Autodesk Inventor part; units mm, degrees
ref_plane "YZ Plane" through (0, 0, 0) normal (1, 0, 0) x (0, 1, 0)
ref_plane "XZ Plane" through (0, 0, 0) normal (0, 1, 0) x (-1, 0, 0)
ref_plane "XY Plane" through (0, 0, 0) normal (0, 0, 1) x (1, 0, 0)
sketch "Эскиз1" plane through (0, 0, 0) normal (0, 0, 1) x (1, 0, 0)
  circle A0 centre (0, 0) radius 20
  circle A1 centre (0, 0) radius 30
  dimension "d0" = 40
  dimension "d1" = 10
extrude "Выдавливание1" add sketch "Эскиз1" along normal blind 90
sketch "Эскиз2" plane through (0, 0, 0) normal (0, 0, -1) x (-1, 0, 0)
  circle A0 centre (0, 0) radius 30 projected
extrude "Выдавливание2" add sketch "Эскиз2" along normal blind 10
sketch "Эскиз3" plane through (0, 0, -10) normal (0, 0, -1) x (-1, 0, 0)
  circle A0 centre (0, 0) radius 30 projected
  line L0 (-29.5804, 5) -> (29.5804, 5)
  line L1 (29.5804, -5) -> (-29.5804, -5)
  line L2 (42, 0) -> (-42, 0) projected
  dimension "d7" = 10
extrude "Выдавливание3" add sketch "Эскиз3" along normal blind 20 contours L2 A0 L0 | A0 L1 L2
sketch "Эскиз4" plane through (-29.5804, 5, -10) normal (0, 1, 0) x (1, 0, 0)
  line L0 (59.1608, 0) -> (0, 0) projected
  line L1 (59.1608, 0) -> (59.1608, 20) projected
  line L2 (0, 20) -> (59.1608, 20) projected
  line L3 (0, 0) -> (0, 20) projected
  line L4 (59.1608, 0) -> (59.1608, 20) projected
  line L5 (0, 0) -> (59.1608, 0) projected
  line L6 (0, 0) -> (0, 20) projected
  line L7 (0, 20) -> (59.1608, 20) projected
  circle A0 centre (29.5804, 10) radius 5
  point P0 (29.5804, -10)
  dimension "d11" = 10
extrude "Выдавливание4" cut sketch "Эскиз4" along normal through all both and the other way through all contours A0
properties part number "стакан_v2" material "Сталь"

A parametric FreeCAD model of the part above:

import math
import FreeCAD as App
import Part
import Sketcher
from FreeCAD import Vector

doc = App.newDocument("Part")
params = doc.addObject("Spreadsheet::Sheet", "Params")
for row, (alias, value) in enumerate([
    ("sketch1_diameter", "40 mm"),
    ("sketch1_diameter2", "60 mm"),
    ("pad1_length", "90 mm"),
    ("sketch2_diameter", "60 mm"),
    ("pad2_length", "10 mm"),
    ("sketch3_radius", "30 mm"),
    ("pad3_length", "20 mm"),
    ("sketch4_diameter", "10 mm"),
], start=1):
    params.set(f"A{row}", alias)
    params.set(f"B{row}", "=" + value)
    params.setAlias(f"B{row}", alias)

body = doc.addObject("PartDesign::Body", "Body")

# Sketch on XY plane
sketch1 = doc.addObject("Sketcher::SketchObject", "Sketch")
body.addObject(sketch1)
sketch1.AttachmentSupport = (doc.XY_Plane, [""])
sketch1.MapMode = "FlatFace"
sketch1.addGeometry(Part.Circle(Vector(0, 0, 0), Vector(0, 0, 1), 30), False)
sketch1.addGeometry(Part.Circle(Vector(0, 0, 0), Vector(0, 0, 1), 20), False)
sketch1.addConstraint(Sketcher.Constraint("Coincident", 0, 3, -1, 1))
sketch1.addConstraint(Sketcher.Constraint("Coincident", 1, 3, -1, 1))
sketch1.addConstraint(Sketcher.Constraint("Diameter", 1, 40.0))
sketch1.addConstraint(Sketcher.Constraint("Diameter", 0, 60.0))
sketch1.setExpression("Constraints[2]", "Params.sketch1_diameter")
sketch1.setExpression("Constraints[3]", "Params.sketch1_diameter2")
pad1 = doc.addObject("PartDesign::Pad", "Pad")
body.addObject(pad1)
pad1.Profile = sketch1
pad1.setExpression("Length", "Params.pad1_length")

# Sketch on XY plane
sketch2 = doc.addObject("Sketcher::SketchObject", "Sketch001")
body.addObject(sketch2)
sketch2.AttachmentSupport = (doc.XY_Plane, [""])
sketch2.MapMode = "FlatFace"
sketch2.addGeometry(Part.Circle(Vector(0, 0, 0), Vector(0, 0, 1), 30), False)
sketch2.addConstraint(Sketcher.Constraint("Coincident", 0, 3, -1, 1))
sketch2.addConstraint(Sketcher.Constraint("Diameter", 0, 60.0))
sketch2.setExpression("Constraints[1]", "Params.sketch2_diameter")
pad2 = doc.addObject("PartDesign::Pad", "Pad001")
body.addObject(pad2)
pad2.Profile = sketch2
pad2.setExpression("Length", "Params.pad2_length")
pad2.Reversed = True

# Sketch on XY plane
sketch3 = doc.addObject("Sketcher::SketchObject", "Sketch002")
body.addObject(sketch3)
sketch3.AttachmentSupport = (doc.XY_Plane, [""])
sketch3.MapMode = "FlatFace"
sketch3.AttachmentOffset = App.Placement(Vector(0, 0, -10), App.Rotation())
sketch3.addGeometry(Part.ArcOfCircle(Part.Circle(Vector(0, 0, 0), Vector(0, 0, 1), 30), math.radians(-9.594068), math.radians(9.594068)), False)
sketch3.addGeometry(Part.LineSegment(Vector(29.5804, -5, 0), Vector(-29.5804, -5, 0)), False)
sketch3.addGeometry(Part.ArcOfCircle(Part.Circle(Vector(0, 0, 0), Vector(0, 0, 1), 30), math.radians(170.405932), math.radians(189.594068)), False)
sketch3.addGeometry(Part.LineSegment(Vector(-29.5804, 5, 0), Vector(29.5804, 5, 0)), False)
sketch3.addConstraint(Sketcher.Constraint("Coincident", 0, 1, 1, 1))
sketch3.addConstraint(Sketcher.Constraint("Coincident", 1, 2, 2, 2))
sketch3.addConstraint(Sketcher.Constraint("Coincident", 2, 1, 3, 1))
sketch3.addConstraint(Sketcher.Constraint("Coincident", 3, 2, 0, 2))
sketch3.addConstraint(Sketcher.Constraint("Horizontal", 1))
sketch3.addConstraint(Sketcher.Constraint("Horizontal", 3))
sketch3.addConstraint(Sketcher.Constraint("Coincident", 0, 3, -1, 1))
sketch3.addConstraint(Sketcher.Constraint("Coincident", 2, 3, -1, 1))
sketch3.addConstraint(Sketcher.Constraint("Equal", 0, 2))
sketch3.addConstraint(Sketcher.Constraint("Vertical", 1, 2, 2, 1))
sketch3.addConstraint(Sketcher.Constraint("Radius", 0, 30.0))
sketch3.addConstraint(Sketcher.Constraint("DistanceY", 1, 2, 2, 1, 10.0))
sketch3.setExpression("Constraints[10]", "Params.sketch3_radius")
pad3 = doc.addObject("PartDesign::Pad", "Pad002")
body.addObject(pad3)
pad3.Profile = sketch3
pad3.setExpression("Length", "Params.pad3_length")
pad3.Reversed = True

# Sketch on XZ plane
sketch4 = doc.addObject("Sketcher::SketchObject", "Sketch003")
body.addObject(sketch4)
sketch4.AttachmentSupport = (doc.XZ_Plane, [""])
sketch4.MapMode = "FlatFace"
sketch4.AttachmentOffset = App.Placement(Vector(0, 0, -5), App.Rotation())
sketch4.addGeometry(Part.Circle(Vector(0, -20, 0), Vector(0, 0, 1), 5), False)
sketch4.addConstraint(Sketcher.Constraint("PointOnObject", 0, 3, -2))
sketch4.addConstraint(Sketcher.Constraint("Diameter", 0, 10.0))
sketch4.addConstraint(Sketcher.Constraint("DistanceY", 0, 3, -1, 1, 20.0))
sketch4.setExpression("Constraints[1]", "Params.sketch4_diameter")
pocket1 = doc.addObject("PartDesign::Pocket", "Pocket")
body.addObject(pocket1)
pocket1.Profile = sketch4
pocket1.Type = "ThroughAll"
pocket1.Midplane = True

doc.recompute()
